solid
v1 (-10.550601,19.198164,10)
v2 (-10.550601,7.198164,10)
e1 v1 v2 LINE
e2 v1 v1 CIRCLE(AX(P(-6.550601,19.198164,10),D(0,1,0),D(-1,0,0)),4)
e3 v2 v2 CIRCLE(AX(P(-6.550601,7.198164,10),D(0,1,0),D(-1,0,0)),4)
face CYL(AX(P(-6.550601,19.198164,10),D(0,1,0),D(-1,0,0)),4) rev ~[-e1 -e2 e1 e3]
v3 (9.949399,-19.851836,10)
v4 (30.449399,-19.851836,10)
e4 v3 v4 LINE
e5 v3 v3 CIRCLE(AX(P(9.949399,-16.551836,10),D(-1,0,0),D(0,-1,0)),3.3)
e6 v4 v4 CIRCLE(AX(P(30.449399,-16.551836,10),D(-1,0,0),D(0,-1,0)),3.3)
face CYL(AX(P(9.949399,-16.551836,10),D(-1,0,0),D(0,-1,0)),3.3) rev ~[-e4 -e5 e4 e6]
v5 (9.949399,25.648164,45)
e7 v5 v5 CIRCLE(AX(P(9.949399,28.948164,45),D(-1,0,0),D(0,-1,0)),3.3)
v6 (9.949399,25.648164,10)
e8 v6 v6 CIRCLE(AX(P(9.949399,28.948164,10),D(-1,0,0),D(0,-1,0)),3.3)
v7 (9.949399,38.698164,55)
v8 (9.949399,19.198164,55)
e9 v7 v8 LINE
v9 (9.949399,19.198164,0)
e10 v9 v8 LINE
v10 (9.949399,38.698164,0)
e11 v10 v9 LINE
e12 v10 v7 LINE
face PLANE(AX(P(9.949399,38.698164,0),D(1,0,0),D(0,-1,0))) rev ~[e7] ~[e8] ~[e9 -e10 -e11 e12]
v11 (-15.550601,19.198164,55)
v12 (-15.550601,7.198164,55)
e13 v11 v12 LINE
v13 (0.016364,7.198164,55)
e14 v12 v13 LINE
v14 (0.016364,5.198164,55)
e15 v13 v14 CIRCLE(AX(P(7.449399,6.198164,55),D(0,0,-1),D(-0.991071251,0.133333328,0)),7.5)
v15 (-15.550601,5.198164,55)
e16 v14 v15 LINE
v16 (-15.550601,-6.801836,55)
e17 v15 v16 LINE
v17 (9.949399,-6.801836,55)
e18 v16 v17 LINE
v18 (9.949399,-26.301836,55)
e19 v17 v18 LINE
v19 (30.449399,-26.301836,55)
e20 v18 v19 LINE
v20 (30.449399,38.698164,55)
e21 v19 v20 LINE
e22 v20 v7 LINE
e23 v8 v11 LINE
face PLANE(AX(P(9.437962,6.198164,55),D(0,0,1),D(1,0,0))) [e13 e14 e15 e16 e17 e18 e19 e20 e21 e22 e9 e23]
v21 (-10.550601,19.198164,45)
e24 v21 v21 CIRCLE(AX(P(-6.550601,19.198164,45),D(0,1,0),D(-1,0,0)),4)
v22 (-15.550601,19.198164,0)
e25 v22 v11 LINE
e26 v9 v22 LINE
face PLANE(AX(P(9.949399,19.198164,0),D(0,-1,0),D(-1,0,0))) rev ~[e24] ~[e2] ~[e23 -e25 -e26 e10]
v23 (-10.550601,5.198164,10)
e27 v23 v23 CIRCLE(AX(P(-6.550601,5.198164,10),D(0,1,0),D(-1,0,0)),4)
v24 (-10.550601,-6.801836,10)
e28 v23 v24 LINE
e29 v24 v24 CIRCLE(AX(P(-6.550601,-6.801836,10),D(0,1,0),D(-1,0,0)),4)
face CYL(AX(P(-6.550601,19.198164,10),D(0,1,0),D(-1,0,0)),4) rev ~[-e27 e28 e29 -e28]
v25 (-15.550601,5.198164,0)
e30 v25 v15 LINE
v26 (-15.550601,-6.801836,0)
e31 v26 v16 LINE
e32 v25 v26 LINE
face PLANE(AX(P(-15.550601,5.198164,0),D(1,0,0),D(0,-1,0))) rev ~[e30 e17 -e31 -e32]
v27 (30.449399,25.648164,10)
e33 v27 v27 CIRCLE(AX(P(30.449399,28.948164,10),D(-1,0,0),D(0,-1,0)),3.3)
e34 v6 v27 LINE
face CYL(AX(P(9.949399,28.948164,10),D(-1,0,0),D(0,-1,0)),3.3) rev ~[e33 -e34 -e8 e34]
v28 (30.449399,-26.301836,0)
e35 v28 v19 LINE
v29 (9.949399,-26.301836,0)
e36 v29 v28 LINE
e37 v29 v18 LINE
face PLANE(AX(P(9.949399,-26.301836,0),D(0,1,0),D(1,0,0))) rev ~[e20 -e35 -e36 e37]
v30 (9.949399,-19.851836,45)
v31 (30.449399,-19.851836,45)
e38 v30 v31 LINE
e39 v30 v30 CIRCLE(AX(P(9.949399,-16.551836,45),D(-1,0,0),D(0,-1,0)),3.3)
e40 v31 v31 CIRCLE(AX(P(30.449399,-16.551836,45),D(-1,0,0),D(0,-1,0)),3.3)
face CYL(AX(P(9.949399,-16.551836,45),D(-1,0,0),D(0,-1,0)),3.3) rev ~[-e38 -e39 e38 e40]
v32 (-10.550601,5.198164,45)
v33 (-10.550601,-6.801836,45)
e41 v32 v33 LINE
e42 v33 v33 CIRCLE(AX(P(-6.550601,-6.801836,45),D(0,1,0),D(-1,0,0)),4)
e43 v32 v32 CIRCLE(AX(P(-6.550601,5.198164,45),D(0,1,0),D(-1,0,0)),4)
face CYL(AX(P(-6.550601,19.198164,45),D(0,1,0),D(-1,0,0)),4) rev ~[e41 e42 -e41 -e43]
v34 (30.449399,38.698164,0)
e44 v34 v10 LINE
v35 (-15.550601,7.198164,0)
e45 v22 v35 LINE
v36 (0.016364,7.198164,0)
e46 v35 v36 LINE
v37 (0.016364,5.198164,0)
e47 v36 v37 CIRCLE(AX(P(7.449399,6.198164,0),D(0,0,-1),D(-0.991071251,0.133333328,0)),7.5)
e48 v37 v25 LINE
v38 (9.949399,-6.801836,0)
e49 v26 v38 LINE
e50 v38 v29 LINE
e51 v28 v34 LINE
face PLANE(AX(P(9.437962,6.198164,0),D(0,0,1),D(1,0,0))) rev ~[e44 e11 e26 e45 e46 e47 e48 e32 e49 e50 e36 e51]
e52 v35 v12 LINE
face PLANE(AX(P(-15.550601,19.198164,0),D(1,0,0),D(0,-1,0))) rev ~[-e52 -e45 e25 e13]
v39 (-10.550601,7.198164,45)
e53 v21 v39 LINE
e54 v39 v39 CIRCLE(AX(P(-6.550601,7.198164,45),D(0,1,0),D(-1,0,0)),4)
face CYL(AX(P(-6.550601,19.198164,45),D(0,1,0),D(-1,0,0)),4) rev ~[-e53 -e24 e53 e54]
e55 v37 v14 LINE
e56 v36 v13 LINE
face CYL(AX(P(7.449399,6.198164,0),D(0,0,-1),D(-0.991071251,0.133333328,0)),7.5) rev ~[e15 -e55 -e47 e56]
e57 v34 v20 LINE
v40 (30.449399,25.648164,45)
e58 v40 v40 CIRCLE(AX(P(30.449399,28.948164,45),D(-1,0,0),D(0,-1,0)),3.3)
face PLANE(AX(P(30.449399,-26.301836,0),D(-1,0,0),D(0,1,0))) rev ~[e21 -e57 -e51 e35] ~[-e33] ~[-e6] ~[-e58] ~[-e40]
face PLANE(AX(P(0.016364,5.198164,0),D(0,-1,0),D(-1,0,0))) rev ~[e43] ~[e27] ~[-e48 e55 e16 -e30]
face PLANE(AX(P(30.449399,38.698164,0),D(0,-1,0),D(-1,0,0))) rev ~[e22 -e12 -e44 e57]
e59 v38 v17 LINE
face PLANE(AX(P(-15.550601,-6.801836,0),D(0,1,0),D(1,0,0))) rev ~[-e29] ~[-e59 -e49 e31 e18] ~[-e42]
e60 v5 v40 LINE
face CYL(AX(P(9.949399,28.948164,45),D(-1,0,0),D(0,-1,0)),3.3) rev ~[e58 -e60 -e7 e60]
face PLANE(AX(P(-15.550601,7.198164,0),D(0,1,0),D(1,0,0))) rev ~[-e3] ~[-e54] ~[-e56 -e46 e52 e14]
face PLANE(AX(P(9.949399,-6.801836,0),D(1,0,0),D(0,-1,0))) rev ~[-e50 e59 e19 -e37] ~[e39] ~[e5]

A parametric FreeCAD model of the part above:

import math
import FreeCAD as App
import Part
import Sketcher

V = App.Vector
Q = App.Units.Quantity

doc = App.newDocument("Part")
body = doc.addObject("PartDesign::Body", "Body")

# Sketch on XY plane
sketch1 = body.newObject("Sketcher::SketchObject", "Sketch")
sketch1.AttachmentSupport = (doc.getObject("XY_Plane"), [""])
sketch1.MapMode = "FlatFace"
sketch1.addGeometry([
    Part.LineSegment(V(9.949399, -26.301836, 0), V(30.449399, -26.301836, 0)),  # 0
    Part.LineSegment(V(30.449399, -26.301836, 0), V(30.449399, 38.698164, 0)),  # 1
    Part.LineSegment(V(30.449399, 38.698164, 0), V(9.949399, 38.698164, 0)),  # 2
    Part.LineSegment(V(9.949399, 38.698164, 0), V(9.949399, 19.198164, 0)),  # 3
    Part.LineSegment(V(9.949399, 19.198164, 0), V(-15.550601, 19.198164, 0)),  # 4
    Part.LineSegment(V(-15.550601, 19.198164, 0), V(-15.550601, 7.198164, 0)),  # 5
    Part.LineSegment(V(-15.550601, 7.198164, 0), V(0.016364, 7.198164, 0)),  # 6
    Part.ArcOfCircle(Part.Circle(V(7.449399, 6.198164, 0), V(0, 0, 1), 7.5), math.radians(-172.337745), math.radians(172.337745)),  # 7
    Part.LineSegment(V(0.016364, 5.198164, 0), V(-15.550601, 5.198164, 0)),  # 8
    Part.LineSegment(V(-15.550601, 5.198164, 0), V(-15.550601, -6.801836, 0)),  # 9
    Part.LineSegment(V(-15.550601, -6.801836, 0), V(9.949399, -6.801836, 0)),  # 10
    Part.LineSegment(V(9.949399, -6.801836, 0), V(9.949399, -26.301836, 0)),  # 11
], False)
sketch1.addConstraint([
    Sketcher.Constraint("Coincident", 0, 2, 1, 1),
    Sketcher.Constraint("Coincident", 1, 2, 2, 1),
    Sketcher.Constraint("Coincident", 2, 2, 3, 1),
    Sketcher.Constraint("Coincident", 3, 2, 4, 1),
    Sketcher.Constraint("Coincident", 4, 2, 5, 1),
    Sketcher.Constraint("Coincident", 5, 2, 6, 1),
    Sketcher.Constraint("Coincident", 6, 2, 7, 2),
    Sketcher.Constraint("Coincident", 7, 1, 8, 1),
    Sketcher.Constraint("Coincident", 8, 2, 9, 1),
    Sketcher.Constraint("Coincident", 9, 2, 10, 1),
    Sketcher.Constraint("Coincident", 10, 2, 11, 1),
    Sketcher.Constraint("Coincident", 11, 2, 0, 1),
    Sketcher.Constraint("Horizontal", 0),
    Sketcher.Constraint("Vertical", 1),
    Sketcher.Constraint("Horizontal", 2),
    Sketcher.Constraint("Vertical", 3),
    Sketcher.Constraint("Horizontal", 4),
    Sketcher.Constraint("Vertical", 5),
    Sketcher.Constraint("Horizontal", 6),
    Sketcher.Constraint("Horizontal", 8),
    Sketcher.Constraint("Vertical", 9),
    Sketcher.Constraint("Horizontal", 10),
    Sketcher.Constraint("Vertical", 11),
    Sketcher.Constraint("Vertical", 6, 2, 7, 1),
    Sketcher.Constraint("Vertical", 5, 2, 8, 2),
    Sketcher.Constraint("Vertical", 3, 2, 10, 2),
    Sketcher.Constraint("Equal", 5, 9),
    Sketcher.Constraint("Equal", 3, 11),
    Sketcher.Constraint("Radius", 7, Q("7.5 mm")),
    Sketcher.Constraint("DistanceY", 1, 1, 1, 2, Q("65 mm")),
    Sketcher.Constraint("DistanceY", 5, 2, 5, 1, Q("12 mm")),
    Sketcher.Constraint("DistanceX", 0, 1, 0, 2, Q("20.5 mm")),
    Sketcher.Constraint("DistanceX", 4, 2, 4, 1, Q("25.5 mm")),
    Sketcher.Constraint("DistanceY", 3, 2, 3, 1, Q("19.5 mm")),
    Sketcher.Constraint("DistanceX", 7, 3, 0, 2, Q("23 mm")),
    Sketcher.Constraint("DistanceX", -1, 1, 7, 3, Q("7.449399 mm")),
    Sketcher.Constraint("DistanceY", -1, 1, 7, 3, Q("6.198164 mm")),
])
pad1 = body.newObject("PartDesign::Pad", "Pad")
pad1.Profile = sketch1
pad1.Length = 55

# Sketch on XZ plane
sketch2 = body.newObject("Sketcher::SketchObject", "Sketch001")
sketch2.AttachmentSupport = (doc.getObject("XZ_Plane"), [""])
sketch2.MapMode = "FlatFace"
sketch2.AttachmentOffset = App.Placement(V(0, 0, -19.198164), App.Rotation())
sketch2.addGeometry([
    Part.Circle(V(-6.550601, 10, 0), V(0, 0, 1), 4),
    Part.Circle(V(-6.550601, 45, 0), V(0, 0, 1), 4),
], False)
sketch2.addConstraint([
    Sketcher.Constraint("Equal", 0, 1),
    Sketcher.Constraint("Vertical", 0, 3, 1, 3),
    Sketcher.Constraint("Diameter", 0, Q("8 mm")),
    Sketcher.Constraint("DistanceY", -1, 1, 0, 3, Q("10 mm")),
    Sketcher.Constraint("DistanceY", -1, 1, 1, 3, Q("45 mm")),
    Sketcher.Constraint("DistanceX", 0, 3, -1, 1, Q("6.550601 mm")),
])
pocket1 = body.newObject("PartDesign::Pocket", "Pocket")
pocket1.Profile = sketch2
pocket1.Length = 31.4
pocket1.Reversed = True

# Sketch on YZ plane
sketch3 = body.newObject("Sketcher::SketchObject", "Sketch002")
sketch3.AttachmentSupport = (doc.getObject("YZ_Plane"), [""])
sketch3.MapMode = "FlatFace"
sketch3.AttachmentOffset = App.Placement(V(0, 0, 9.949399), App.Rotation())
sketch3.addGeometry([
    Part.Circle(V(28.948164, 10, 0), V(0, 0, 1), 3.3),
    Part.Circle(V(28.948164, 45, 0), V(0, 0, 1), 3.3),
], False)
sketch3.addConstraint([
    Sketcher.Constraint("Equal", 0, 1),
    Sketcher.Constraint("Vertical", 0, 3, 1, 3),
    Sketcher.Constraint("Diameter", 0, Q("6.6 mm")),
    Sketcher.Constraint("DistanceY", -1, 1, 0, 3, Q("10 mm")),
    Sketcher.Constraint("DistanceY", -1, 1, 1, 3, Q("45 mm")),
    Sketcher.Constraint("DistanceX", -1, 1, 0, 3, Q("28.948164 mm")),
])
pocket2 = body.newObject("PartDesign::Pocket", "Pocket001")
pocket2.Profile = sketch3
pocket2.Length = 25
pocket2.Reversed = True

# Sketch on YZ plane
sketch4 = body.newObject("Sketcher::SketchObject", "Sketch003")
sketch4.AttachmentSupport = (doc.getObject("YZ_Plane"), [""])
sketch4.MapMode = "FlatFace"
sketch4.AttachmentOffset = App.Placement(V(0, 0, 9.949399), App.Rotation())
sketch4.addGeometry([
    Part.Circle(V(-16.551836, 10, 0), V(0, 0, 1), 3.3),
    Part.Circle(V(-16.551836, 45, 0), V(0, 0, 1), 3.3),
], False)
sketch4.addConstraint([
    Sketcher.Constraint("Equal", 0, 1),
    Sketcher.Constraint("Vertical", 0, 3, 1, 3),
    Sketcher.Constraint("Diameter", 0, Q("6.6 mm")),
    Sketcher.Constraint("DistanceY", -1, 1, 0, 3, Q("10 mm")),
    Sketcher.Constraint("DistanceY", -1, 1, 1, 3, Q("45 mm")),
    Sketcher.Constraint("DistanceX", 0, 3, -1, 1, Q("16.551836 mm")),
])
pocket3 = body.newObject("PartDesign::Pocket", "Pocket002")
pocket3.Profile = sketch4
pocket3.Length = 25
pocket3.Reversed = True

doc.recompute()
